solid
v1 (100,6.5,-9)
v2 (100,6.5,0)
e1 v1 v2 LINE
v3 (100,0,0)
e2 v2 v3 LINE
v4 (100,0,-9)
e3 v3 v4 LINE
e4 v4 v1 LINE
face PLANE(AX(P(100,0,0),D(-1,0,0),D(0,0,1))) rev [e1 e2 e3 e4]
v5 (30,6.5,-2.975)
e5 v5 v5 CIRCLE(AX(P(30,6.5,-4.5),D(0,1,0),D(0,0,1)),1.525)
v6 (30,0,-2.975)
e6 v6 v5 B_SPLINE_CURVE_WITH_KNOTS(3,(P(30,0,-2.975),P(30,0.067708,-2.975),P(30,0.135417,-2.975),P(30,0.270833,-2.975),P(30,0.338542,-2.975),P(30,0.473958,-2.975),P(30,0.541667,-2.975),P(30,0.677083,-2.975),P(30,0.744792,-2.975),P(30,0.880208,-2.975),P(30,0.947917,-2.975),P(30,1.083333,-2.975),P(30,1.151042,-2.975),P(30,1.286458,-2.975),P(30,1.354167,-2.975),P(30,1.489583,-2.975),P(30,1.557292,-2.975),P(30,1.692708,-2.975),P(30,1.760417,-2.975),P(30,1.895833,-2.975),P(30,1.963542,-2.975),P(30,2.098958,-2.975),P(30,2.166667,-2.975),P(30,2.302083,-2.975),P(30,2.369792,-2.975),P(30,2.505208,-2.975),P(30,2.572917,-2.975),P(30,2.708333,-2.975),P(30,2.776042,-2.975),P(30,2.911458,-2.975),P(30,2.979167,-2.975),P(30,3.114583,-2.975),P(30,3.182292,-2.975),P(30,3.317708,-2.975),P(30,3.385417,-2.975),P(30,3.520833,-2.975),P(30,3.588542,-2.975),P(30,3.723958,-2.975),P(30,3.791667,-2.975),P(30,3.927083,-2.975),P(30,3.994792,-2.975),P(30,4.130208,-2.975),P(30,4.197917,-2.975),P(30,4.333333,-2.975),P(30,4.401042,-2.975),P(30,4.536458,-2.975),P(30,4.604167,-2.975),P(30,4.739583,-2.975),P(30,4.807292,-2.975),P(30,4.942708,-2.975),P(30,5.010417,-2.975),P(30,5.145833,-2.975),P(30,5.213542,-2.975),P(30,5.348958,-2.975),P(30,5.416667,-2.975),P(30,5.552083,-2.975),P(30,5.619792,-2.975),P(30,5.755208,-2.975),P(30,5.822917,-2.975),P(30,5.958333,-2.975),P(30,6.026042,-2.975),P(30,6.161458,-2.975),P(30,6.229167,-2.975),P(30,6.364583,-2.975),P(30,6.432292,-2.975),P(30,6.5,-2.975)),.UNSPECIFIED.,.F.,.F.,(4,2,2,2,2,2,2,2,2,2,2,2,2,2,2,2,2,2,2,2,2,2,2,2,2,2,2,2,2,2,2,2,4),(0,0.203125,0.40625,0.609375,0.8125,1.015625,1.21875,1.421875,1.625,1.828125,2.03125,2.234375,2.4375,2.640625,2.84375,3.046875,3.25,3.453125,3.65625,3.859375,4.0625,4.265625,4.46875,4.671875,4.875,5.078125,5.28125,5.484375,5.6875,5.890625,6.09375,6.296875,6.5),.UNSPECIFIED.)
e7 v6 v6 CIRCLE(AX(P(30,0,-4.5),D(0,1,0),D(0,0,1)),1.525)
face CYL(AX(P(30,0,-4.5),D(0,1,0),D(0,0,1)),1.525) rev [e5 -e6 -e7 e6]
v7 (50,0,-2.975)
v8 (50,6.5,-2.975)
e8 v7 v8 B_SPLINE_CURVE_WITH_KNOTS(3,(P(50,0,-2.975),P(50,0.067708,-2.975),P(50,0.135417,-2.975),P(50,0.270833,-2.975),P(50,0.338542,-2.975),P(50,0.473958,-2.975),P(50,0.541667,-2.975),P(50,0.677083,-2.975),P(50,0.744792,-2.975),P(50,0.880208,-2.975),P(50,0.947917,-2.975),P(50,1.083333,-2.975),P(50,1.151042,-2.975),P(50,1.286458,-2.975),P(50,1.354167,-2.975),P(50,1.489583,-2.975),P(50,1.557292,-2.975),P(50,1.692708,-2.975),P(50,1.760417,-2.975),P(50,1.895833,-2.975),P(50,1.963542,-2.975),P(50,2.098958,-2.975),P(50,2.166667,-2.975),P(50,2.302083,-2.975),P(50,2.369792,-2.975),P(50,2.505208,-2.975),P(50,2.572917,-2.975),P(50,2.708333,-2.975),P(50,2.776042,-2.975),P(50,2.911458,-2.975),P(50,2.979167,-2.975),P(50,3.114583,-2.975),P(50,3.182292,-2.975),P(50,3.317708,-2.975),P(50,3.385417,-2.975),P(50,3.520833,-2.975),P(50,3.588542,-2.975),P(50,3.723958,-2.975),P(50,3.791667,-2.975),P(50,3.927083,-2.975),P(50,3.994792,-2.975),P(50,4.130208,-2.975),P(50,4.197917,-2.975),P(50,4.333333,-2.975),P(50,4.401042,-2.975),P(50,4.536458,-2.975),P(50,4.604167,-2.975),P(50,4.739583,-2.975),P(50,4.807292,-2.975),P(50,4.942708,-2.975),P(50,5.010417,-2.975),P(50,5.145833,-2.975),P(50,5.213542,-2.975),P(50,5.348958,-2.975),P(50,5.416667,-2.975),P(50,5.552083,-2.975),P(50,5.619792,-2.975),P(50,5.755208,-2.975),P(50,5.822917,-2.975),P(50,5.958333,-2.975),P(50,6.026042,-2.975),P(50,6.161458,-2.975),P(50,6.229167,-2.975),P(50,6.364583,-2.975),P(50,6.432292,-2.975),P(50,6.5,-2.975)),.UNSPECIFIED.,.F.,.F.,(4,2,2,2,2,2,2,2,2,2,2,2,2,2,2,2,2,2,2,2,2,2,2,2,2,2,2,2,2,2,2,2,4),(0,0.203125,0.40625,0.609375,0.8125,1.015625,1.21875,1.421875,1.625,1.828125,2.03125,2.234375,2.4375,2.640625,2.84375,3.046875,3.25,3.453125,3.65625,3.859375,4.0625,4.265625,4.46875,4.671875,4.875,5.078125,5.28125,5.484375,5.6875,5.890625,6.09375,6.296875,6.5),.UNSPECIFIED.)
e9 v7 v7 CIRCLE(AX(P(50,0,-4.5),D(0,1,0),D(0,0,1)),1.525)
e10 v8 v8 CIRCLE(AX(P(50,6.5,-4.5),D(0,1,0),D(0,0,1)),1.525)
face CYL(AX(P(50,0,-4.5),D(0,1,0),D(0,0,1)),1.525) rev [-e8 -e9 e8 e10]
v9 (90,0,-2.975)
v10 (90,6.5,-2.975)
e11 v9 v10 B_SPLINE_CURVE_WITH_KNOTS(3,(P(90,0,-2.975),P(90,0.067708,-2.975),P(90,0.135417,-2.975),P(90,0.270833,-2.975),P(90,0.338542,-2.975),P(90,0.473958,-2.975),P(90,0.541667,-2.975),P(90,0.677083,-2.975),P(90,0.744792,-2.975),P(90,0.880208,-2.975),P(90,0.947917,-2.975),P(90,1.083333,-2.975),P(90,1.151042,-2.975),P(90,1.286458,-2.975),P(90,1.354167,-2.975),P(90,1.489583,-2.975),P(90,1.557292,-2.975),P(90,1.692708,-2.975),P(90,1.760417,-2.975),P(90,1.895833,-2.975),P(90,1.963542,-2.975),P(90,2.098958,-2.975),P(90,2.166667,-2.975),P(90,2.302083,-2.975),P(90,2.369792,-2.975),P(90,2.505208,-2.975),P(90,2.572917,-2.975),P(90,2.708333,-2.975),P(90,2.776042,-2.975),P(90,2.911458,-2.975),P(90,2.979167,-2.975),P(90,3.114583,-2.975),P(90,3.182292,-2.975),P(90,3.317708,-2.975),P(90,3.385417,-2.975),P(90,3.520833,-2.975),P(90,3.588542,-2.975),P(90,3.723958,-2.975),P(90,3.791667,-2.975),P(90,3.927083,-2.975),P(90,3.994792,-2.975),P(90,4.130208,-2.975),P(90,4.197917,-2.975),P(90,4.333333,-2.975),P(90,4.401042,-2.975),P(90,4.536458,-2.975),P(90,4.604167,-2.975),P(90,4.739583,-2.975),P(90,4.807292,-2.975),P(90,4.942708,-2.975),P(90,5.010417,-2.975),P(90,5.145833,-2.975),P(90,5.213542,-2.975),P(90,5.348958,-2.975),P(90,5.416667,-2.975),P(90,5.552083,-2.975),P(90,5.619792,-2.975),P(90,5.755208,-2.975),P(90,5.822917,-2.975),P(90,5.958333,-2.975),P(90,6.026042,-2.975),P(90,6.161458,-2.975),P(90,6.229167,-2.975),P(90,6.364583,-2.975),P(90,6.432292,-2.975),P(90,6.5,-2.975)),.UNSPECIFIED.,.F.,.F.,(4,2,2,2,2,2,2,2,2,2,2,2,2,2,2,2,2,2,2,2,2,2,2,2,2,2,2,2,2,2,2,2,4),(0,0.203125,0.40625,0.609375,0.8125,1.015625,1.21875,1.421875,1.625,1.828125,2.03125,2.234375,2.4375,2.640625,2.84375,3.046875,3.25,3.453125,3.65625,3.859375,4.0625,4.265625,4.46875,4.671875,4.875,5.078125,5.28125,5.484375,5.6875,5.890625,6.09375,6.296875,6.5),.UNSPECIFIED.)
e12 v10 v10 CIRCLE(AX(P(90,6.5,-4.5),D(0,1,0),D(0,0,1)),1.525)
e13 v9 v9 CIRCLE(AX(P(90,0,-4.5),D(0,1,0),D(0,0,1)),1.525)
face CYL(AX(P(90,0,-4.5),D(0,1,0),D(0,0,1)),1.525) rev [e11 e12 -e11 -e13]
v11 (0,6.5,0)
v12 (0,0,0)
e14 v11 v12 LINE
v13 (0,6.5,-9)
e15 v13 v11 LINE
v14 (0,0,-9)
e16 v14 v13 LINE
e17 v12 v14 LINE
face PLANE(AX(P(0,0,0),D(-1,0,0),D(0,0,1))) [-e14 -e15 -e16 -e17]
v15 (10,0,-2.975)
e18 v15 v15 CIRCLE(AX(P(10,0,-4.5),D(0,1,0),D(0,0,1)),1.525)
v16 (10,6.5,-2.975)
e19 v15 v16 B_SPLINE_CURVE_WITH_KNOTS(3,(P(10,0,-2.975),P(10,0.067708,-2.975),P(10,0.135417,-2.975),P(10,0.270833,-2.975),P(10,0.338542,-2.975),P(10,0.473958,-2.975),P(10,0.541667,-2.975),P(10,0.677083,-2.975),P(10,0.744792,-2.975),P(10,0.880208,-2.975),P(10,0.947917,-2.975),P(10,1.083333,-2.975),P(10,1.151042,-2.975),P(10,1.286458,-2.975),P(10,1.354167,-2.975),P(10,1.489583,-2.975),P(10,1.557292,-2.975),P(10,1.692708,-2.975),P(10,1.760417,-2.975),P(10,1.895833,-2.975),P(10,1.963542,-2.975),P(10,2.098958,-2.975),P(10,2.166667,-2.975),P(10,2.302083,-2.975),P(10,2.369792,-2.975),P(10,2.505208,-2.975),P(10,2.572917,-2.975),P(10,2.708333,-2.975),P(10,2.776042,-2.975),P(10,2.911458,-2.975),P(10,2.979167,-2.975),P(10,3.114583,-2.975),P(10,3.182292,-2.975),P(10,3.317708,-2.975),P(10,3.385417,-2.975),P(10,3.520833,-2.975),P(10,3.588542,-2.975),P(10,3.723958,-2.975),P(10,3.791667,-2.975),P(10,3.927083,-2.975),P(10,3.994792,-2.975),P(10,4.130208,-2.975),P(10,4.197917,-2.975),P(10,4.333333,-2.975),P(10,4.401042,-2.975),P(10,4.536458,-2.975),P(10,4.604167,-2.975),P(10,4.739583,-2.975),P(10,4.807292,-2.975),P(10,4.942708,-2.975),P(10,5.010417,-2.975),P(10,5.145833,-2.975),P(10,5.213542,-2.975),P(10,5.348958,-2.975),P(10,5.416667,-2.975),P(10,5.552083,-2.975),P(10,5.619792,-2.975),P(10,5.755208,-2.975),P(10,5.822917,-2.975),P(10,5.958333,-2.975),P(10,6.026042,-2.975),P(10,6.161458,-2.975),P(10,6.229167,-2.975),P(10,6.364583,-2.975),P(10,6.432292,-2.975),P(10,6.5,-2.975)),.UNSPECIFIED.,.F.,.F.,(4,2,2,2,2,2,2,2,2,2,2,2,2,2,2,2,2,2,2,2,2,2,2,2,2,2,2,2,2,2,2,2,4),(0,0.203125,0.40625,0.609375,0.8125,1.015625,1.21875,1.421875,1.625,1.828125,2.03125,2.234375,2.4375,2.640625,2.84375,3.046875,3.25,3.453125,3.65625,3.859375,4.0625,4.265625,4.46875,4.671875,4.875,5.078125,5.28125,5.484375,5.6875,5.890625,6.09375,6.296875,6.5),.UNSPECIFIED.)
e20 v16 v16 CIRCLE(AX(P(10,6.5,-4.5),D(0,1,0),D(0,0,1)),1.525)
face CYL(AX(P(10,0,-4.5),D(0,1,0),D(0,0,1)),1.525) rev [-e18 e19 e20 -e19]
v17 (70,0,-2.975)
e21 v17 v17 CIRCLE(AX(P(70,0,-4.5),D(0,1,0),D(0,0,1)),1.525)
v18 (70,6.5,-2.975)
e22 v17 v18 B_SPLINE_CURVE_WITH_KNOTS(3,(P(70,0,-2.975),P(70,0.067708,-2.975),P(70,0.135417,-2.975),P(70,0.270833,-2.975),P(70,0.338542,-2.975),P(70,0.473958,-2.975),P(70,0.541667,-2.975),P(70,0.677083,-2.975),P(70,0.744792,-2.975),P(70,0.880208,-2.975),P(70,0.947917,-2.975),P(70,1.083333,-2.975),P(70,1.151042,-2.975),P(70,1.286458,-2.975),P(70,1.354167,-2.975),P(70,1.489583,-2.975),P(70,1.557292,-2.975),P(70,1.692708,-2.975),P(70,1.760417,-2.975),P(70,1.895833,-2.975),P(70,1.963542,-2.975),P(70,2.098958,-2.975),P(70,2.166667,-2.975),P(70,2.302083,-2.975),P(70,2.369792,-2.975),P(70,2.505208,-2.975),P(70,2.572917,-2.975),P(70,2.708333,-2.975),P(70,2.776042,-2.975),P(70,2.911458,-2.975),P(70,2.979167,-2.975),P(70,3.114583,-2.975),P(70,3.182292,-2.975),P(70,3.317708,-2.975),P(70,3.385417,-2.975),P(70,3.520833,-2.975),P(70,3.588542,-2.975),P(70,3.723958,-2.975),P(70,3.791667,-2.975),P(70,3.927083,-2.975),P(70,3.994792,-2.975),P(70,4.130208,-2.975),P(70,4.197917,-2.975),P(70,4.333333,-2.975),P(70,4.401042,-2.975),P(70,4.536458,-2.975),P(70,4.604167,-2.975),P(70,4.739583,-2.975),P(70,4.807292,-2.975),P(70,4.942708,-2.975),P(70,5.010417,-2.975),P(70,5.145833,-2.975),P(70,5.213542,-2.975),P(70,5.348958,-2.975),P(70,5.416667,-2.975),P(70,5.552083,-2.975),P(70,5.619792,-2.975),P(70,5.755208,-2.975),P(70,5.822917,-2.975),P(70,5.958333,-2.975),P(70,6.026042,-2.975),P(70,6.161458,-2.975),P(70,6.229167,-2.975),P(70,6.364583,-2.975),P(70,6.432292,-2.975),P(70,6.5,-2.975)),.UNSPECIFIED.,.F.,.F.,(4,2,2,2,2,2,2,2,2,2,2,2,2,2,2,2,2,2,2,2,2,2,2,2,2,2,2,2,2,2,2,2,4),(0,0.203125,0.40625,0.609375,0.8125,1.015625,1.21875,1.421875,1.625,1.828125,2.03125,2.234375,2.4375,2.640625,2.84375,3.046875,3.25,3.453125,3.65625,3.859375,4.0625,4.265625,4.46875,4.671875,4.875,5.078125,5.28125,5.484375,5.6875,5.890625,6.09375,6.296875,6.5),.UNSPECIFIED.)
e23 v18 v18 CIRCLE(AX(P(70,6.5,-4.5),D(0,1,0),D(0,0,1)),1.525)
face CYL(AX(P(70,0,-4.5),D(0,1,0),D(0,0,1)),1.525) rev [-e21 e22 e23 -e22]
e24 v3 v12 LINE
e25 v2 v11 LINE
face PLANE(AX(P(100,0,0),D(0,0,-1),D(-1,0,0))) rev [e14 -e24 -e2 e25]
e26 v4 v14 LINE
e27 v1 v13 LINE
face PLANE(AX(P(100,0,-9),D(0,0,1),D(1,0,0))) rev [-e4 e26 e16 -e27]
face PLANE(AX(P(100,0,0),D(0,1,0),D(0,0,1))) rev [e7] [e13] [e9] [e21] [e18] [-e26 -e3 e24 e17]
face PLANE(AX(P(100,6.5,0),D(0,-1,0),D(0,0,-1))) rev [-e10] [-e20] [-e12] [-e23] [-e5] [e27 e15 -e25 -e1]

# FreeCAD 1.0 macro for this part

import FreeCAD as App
import Part
import Sketcher
from FreeCAD import Vector
Q = App.Units.Quantity

doc = App.newDocument("Part")
params = doc.addObject("Spreadsheet::Sheet", "Params")
for row, (alias, value) in enumerate([
    ("sketch1_height", "9 mm"),
    ("sketch1_width", "6.5 mm"),
    ("pad1_length", "100 mm"),
    ("sketch2_diameter", "3.05 mm"),
], start=1):
    params.set(f"A{row}", alias)
    params.set(f"B{row}", "=" + value)
    params.setAlias(f"B{row}", alias)

body = doc.addObject("PartDesign::Body", "Body")

# Sketch on YZ plane
sketch1 = doc.addObject("Sketcher::SketchObject", "Sketch")
body.addObject(sketch1)
sketch1.AttachmentSupport = (doc.YZ_Plane, [""])
sketch1.MapMode = "FlatFace"
sketch1.addGeometry(Part.LineSegment(Vector(6.5, 0, 0), Vector(0, 0, 0)), False)
sketch1.addGeometry(Part.LineSegment(Vector(0, 0, 0), Vector(0, -9, 0)), False)
sketch1.addGeometry(Part.LineSegment(Vector(0, -9, 0), Vector(6.5, -9, 0)), False)
sketch1.addGeometry(Part.LineSegment(Vector(6.5, -9, 0), Vector(6.5, 0, 0)), False)
sketch1.addConstraint(Sketcher.Constraint("Coincident", 0, 2, 1, 1))
sketch1.addConstraint(Sketcher.Constraint("Coincident", 1, 2, 2, 1))
sketch1.addConstraint(Sketcher.Constraint("Coincident", 2, 2, 3, 1))
sketch1.addConstraint(Sketcher.Constraint("Coincident", 3, 2, 0, 1))
sketch1.addConstraint(Sketcher.Constraint("Horizontal", 0))
sketch1.addConstraint(Sketcher.Constraint("Vertical", 1))
sketch1.addConstraint(Sketcher.Constraint("Horizontal", 2))
sketch1.addConstraint(Sketcher.Constraint("Vertical", 3))
sketch1.addConstraint(Sketcher.Constraint("Coincident", 0, 2, -1, 1))
sketch1.addConstraint(Sketcher.Constraint("DistanceY", 1, 2, 1, 1, Q("9 mm")))
sketch1.addConstraint(Sketcher.Constraint("DistanceX", 0, 2, 0, 1, Q("6.5 mm")))
sketch1.setExpression("Constraints[9]", "Params.sketch1_height")
sketch1.setExpression("Constraints[10]", "Params.sketch1_width")
pad1 = doc.addObject("PartDesign::Pad", "Pad")
body.addObject(pad1)
pad1.Profile = sketch1
pad1.setExpression("Length", "Params.pad1_length")

# Sketch on XZ plane
sketch2 = doc.addObject("Sketcher::SketchObject", "Sketch001")
body.addObject(sketch2)
sketch2.AttachmentSupport = (doc.XZ_Plane, [""])
sketch2.MapMode = "FlatFace"
sketch2.AttachmentOffset = App.Placement(Vector(0, 0, -6.5), App.Rotation())
sketch2.addGeometry(Part.Circle(Vector(10, -4.5, 0), Vector(0, 0, 1), 1.525), False)
sketch2.addGeometry(Part.Circle(Vector(30, -4.5, 0), Vector(0, 0, 1), 1.525), False)
sketch2.addGeometry(Part.Circle(Vector(50, -4.5, 0), Vector(0, 0, 1), 1.525), False)
sketch2.addGeometry(Part.Circle(Vector(70, -4.5, 0), Vector(0, 0, 1), 1.525), False)
sketch2.addGeometry(Part.Circle(Vector(90, -4.5, 0), Vector(0, 0, 1), 1.525), False)
sketch2.addConstraint(Sketcher.Constraint("Equal", 0, 1))
sketch2.addConstraint(Sketcher.Constraint("Equal", 1, 2))
sketch2.addConstraint(Sketcher.Constraint("Equal", 2, 3))
sketch2.addConstraint(Sketcher.Constraint("Equal", 3, 4))
sketch2.addConstraint(Sketcher.Constraint("Horizontal", 0, 3, 1, 3))
sketch2.addConstraint(Sketcher.Constraint("Horizontal", 1, 3, 2, 3))
sketch2.addConstraint(Sketcher.Constraint("Horizontal", 2, 3, 3, 3))
sketch2.addConstraint(Sketcher.Constraint("Horizontal", 3, 3, 4, 3))
sketch2.addConstraint(Sketcher.Constraint("Diameter", 0, Q("3.05 mm")))
sketch2.addConstraint(Sketcher.Constraint("DistanceX", -1, 1, 0, 3, Q("10 mm")))
sketch2.addConstraint(Sketcher.Constraint("DistanceX", -1, 1, 1, 3, Q("30 mm")))
sketch2.addConstraint(Sketcher.Constraint("DistanceX", -1, 1, 2, 3, Q("50 mm")))
sketch2.addConstraint(Sketcher.Constraint("DistanceX", -1, 1, 3, 3, Q("70 mm")))
sketch2.addConstraint(Sketcher.Constraint("DistanceX", -1, 1, 4, 3, Q("90 mm")))
sketch2.addConstraint(Sketcher.Constraint("DistanceY", 0, 3, -1, 1, Q("4.5 mm")))
sketch2.setExpression("Constraints[8]", "Params.sketch2_diameter")
pocket1 = doc.addObject("PartDesign::Pocket", "Pocket")
body.addObject(pocket1)
pocket1.Profile = sketch2
pocket1.Type = "ThroughAll"
pocket1.Reversed = True

doc.recompute()
